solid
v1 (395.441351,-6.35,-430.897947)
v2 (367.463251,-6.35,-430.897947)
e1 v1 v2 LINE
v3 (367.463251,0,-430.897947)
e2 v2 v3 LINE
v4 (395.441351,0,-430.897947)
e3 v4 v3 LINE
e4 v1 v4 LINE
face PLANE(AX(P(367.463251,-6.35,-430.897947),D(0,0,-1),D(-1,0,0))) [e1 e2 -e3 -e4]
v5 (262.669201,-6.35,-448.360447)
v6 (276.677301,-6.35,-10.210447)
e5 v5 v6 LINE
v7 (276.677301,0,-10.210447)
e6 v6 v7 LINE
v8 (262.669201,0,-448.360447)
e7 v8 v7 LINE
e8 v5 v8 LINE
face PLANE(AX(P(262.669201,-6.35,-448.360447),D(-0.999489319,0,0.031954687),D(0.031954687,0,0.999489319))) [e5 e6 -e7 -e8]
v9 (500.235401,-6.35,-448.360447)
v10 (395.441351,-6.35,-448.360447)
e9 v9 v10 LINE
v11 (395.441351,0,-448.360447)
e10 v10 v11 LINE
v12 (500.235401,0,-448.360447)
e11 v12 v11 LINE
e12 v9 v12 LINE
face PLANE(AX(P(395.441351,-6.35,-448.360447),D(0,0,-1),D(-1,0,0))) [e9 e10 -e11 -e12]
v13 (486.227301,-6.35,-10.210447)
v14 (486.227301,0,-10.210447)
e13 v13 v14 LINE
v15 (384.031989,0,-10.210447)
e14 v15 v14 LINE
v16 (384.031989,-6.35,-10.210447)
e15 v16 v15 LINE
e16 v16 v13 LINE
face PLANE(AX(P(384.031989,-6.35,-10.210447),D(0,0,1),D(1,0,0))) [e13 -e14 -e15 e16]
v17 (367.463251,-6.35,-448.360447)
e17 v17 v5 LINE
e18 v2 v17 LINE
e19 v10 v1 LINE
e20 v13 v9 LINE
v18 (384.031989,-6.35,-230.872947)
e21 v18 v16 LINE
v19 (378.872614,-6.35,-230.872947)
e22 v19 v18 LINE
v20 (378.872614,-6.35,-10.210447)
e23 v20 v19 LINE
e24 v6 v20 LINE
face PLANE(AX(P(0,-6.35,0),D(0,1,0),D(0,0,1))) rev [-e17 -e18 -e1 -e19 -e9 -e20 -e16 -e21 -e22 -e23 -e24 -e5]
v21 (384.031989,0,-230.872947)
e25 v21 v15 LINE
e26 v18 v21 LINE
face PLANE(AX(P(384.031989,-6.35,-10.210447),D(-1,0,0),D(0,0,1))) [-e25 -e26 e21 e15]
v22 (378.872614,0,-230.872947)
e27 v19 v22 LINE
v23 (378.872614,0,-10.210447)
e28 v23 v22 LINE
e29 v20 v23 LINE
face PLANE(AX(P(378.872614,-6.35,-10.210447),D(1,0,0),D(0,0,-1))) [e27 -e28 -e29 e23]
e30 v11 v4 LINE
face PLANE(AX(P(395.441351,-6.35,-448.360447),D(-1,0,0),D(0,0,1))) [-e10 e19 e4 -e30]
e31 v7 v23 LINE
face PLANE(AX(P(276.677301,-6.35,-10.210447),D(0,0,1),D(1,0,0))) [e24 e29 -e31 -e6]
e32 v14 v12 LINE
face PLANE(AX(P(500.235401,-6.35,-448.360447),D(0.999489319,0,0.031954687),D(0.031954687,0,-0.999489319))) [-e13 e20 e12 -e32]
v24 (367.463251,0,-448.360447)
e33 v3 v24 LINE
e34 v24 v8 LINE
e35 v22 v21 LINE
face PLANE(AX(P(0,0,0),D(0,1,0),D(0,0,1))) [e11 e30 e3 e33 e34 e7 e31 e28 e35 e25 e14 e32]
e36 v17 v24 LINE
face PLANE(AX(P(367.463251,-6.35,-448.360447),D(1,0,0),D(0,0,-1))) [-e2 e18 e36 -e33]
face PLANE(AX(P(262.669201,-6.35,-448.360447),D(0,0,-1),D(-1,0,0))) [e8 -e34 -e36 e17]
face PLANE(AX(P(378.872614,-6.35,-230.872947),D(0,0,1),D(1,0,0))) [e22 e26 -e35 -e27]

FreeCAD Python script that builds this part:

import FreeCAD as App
import Part
import Sketcher

V = App.Vector
Q = App.Units.Quantity

doc = App.newDocument("Part")
body = doc.addObject("PartDesign::Body", "Body")

sketch1 = body.newObject("Sketcher::SketchObject", "Sketch")
sketch1.AttachmentSupport = (doc.getObject("XZ_Plane"), [""])
sketch1.MapMode = "FlatFace"
sketch1.addGeometry([
    Part.LineSegment(V(367, -448, 0), V(263, -448, 0)),
    Part.LineSegment(V(263, -448, 0), V(277, -10, 0)),
    Part.LineSegment(V(277, -10, 0), V(379, -10, 0)),
    Part.LineSegment(V(379, -10, 0), V(379, -231, 0)),
    Part.LineSegment(V(379, -231, 0), V(384, -231, 0)),
    Part.LineSegment(V(384, -231, 0), V(384, -10, 0)),
    Part.LineSegment(V(384, -10, 0), V(486, -10, 0)),
    Part.LineSegment(V(486, -10, 0), V(500, -448, 0)),
    Part.LineSegment(V(500, -448, 0), V(395, -448, 0)),
    Part.LineSegment(V(395, -448, 0), V(395, -431, 0)),
    Part.LineSegment(V(395, -431, 0), V(367, -431, 0)),
    Part.LineSegment(V(367, -431, 0), V(367, -448, 0)),
], False)
sketch1.addConstraint([
    Sketcher.Constraint("Coincident", 0, 2, 1, 1),
    Sketcher.Constraint("Coincident", 1, 2, 2, 1),
    Sketcher.Constraint("Coincident", 2, 2, 3, 1),
    Sketcher.Constraint("Coincident", 3, 2, 4, 1),
    Sketcher.Constraint("Coincident", 4, 2, 5, 1),
    Sketcher.Constraint("Coincident", 5, 2, 6, 1),
    Sketcher.Constraint("Coincident", 6, 2, 7, 1),
    Sketcher.Constraint("Coincident", 7, 2, 8, 1),
    Sketcher.Constraint("Coincident", 8, 2, 9, 1),
    Sketcher.Constraint("Coincident", 9, 2, 10, 1),
    Sketcher.Constraint("Coincident", 10, 2, 11, 1),
    Sketcher.Constraint("Coincident", 11, 2, 0, 1),
    Sketcher.Constraint("Horizontal", 0),
    Sketcher.Constraint("Horizontal", 2),
    Sketcher.Constraint("Vertical", 3),
    Sketcher.Constraint("Horizontal", 4),
    Sketcher.Constraint("Vertical", 5),
    Sketcher.Constraint("Horizontal", 6),
    Sketcher.Constraint("Horizontal", 8),
    Sketcher.Constraint("Vertical", 9),
    Sketcher.Constraint("Horizontal", 10),
    Sketcher.Constraint("Vertical", 11),
    Sketcher.Constraint("Horizontal", 2, 2, 5, 2),
    Sketcher.Constraint("Horizontal", 0, 2, 7, 2),
    Sketcher.Constraint("Equal", 2, 6),
    Sketcher.Constraint("Equal", 0, 8),
    Sketcher.Constraint("Equal", 1, 7),
    Sketcher.Constraint("DistanceX", 4, 1, 4, 2, Q("0.203125 in")),
    Sketcher.Constraint("DistanceY", 3, 2, 3, 1, Q("8.6875 in")),
    Sketcher.Constraint("DistanceY", 9, 1, 9, 2, Q("0.6875 in")),
    Sketcher.Constraint("DistanceY", 0, 2, 1, 2, Q("17.25 in")),
    Sketcher.Constraint("DistanceX", 1, 2, 6, 2, Q("8.25 in")),
    Sketcher.Constraint("DistanceX", 10, 2, 10, 1, Q("1.1015 in")),
    Sketcher.Constraint("DistanceX", 0, 2, 7, 2, Q("9.353 in")),
    Sketcher.Constraint("DistanceX", -1, 1, 0, 2, Q("262.669201 mm")),
    Sketcher.Constraint("DistanceY", 0, 2, -1, 1, Q("448.360447 mm")),
])
pad1 = body.newObject("PartDesign::Pad", "Pad")
pad1.Profile = sketch1
pad1.Length = Q("0.25 in")

doc.recompute()
